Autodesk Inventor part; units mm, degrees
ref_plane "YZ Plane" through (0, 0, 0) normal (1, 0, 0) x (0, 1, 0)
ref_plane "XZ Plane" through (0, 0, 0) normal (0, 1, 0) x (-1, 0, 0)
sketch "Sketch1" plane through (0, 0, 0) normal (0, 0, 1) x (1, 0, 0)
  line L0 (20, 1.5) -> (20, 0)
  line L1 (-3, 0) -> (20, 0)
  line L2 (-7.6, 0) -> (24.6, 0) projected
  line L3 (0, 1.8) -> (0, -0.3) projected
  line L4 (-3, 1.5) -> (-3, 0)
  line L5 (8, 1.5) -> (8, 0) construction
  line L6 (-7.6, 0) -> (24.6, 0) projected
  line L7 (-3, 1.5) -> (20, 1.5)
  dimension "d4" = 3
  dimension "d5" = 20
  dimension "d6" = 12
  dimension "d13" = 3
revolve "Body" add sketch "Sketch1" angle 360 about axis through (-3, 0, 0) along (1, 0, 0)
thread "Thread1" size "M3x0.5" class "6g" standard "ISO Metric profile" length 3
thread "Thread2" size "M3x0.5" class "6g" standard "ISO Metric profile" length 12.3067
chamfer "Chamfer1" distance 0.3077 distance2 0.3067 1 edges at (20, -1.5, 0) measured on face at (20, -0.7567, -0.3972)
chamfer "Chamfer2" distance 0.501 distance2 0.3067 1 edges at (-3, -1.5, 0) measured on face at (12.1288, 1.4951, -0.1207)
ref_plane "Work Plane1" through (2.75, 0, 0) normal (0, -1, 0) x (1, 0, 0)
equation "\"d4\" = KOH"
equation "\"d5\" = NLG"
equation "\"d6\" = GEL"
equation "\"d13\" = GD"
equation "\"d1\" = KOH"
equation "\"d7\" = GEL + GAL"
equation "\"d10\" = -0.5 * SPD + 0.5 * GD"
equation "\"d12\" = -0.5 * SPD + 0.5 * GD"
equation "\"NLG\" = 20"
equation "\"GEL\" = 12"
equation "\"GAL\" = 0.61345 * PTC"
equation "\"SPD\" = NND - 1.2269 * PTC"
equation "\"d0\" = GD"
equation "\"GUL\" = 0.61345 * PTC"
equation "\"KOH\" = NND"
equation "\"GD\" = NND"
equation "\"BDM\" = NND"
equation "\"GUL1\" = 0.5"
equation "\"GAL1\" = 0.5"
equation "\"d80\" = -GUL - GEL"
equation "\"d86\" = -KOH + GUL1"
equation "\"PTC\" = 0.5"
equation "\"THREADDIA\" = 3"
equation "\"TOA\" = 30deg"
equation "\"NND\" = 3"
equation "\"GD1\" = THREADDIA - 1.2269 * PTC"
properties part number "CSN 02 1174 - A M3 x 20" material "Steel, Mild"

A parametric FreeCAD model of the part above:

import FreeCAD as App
import Part
import Sketcher


def edges_at(feature, points):
    """Names of the edges that pass closest to the given points."""
    edges = feature.Shape.Edges
    near = lambda p: min(range(len(edges)), key=lambda i: edges[i].distToShape(Part.Vertex(*p))[0])
    return sorted({f"Edge{near(p) + 1}" for p in points})


def add_polygon(sketch, points):
    """Adds a closed chain of lines whose ends are joined by coincident constraints."""
    first, n = sketch.GeometryCount, len(points)
    for a, b in zip(points, points[1:] + points[:1]):
        sketch.addGeometry(Part.LineSegment(App.Vector(*a, 0), App.Vector(*b, 0)), False)
    for i in range(n):
        sketch.addConstraint(Sketcher.Constraint("Coincident", first + i, 2, first + (i + 1) % n, 1))

doc = App.newDocument("Part")
body = doc.addObject("PartDesign::Body", "Body")

# Sketch on XY plane
sketch1 = body.newObject("Sketcher::SketchObject", "Sketch")
sketch1.AttachmentSupport = (doc.getObject("XY_Plane"), [""])
sketch1.MapMode = "FlatFace"
add_polygon(sketch1, [(20, 0), (20, 1.5), (-3, 1.5), (-3, 0)])  # lines 0-3
sketch1.addConstraint([
    Sketcher.Constraint("Vertical", 0),
    Sketcher.Constraint("Horizontal", 1),
    Sketcher.Constraint("Vertical", 2),
    Sketcher.Constraint("Horizontal", 3),
    Sketcher.Constraint("PointOnObject", 2, 2, -1),
    Sketcher.Constraint("DistanceX", -1, 1, 0, 2, 20.0),
    Sketcher.Constraint("DistanceX", 1, 2, -1, 1, 3.0),
    Sketcher.Constraint("DistanceY", 0, 1, 0, 2, 1.5),
])
revolution = body.newObject("PartDesign::Revolution", "Revolution")
revolution.Profile = sketch1
revolution.ReferenceAxis = (sketch1, ["H_Axis"])
revolution.Angle = 360
doc.recompute()

chamfer = body.newObject("PartDesign::Chamfer", "Chamfer")
chamfer.Base = (revolution, edges_at(revolution, [(20, -1.5, 0)]))
chamfer.ChamferType = "Two distances"
chamfer.Size = 0.3077
chamfer.Size2 = 0.3067
doc.recompute()

chamfer2 = body.newObject("PartDesign::Chamfer", "Chamfer001")
chamfer2.Base = (chamfer, edges_at(chamfer, [(-3, -1.5, 0)]))
chamfer2.ChamferType = "Two distances"
chamfer2.Size = 0.501
chamfer2.Size2 = 0.3067

doc.recompute()
